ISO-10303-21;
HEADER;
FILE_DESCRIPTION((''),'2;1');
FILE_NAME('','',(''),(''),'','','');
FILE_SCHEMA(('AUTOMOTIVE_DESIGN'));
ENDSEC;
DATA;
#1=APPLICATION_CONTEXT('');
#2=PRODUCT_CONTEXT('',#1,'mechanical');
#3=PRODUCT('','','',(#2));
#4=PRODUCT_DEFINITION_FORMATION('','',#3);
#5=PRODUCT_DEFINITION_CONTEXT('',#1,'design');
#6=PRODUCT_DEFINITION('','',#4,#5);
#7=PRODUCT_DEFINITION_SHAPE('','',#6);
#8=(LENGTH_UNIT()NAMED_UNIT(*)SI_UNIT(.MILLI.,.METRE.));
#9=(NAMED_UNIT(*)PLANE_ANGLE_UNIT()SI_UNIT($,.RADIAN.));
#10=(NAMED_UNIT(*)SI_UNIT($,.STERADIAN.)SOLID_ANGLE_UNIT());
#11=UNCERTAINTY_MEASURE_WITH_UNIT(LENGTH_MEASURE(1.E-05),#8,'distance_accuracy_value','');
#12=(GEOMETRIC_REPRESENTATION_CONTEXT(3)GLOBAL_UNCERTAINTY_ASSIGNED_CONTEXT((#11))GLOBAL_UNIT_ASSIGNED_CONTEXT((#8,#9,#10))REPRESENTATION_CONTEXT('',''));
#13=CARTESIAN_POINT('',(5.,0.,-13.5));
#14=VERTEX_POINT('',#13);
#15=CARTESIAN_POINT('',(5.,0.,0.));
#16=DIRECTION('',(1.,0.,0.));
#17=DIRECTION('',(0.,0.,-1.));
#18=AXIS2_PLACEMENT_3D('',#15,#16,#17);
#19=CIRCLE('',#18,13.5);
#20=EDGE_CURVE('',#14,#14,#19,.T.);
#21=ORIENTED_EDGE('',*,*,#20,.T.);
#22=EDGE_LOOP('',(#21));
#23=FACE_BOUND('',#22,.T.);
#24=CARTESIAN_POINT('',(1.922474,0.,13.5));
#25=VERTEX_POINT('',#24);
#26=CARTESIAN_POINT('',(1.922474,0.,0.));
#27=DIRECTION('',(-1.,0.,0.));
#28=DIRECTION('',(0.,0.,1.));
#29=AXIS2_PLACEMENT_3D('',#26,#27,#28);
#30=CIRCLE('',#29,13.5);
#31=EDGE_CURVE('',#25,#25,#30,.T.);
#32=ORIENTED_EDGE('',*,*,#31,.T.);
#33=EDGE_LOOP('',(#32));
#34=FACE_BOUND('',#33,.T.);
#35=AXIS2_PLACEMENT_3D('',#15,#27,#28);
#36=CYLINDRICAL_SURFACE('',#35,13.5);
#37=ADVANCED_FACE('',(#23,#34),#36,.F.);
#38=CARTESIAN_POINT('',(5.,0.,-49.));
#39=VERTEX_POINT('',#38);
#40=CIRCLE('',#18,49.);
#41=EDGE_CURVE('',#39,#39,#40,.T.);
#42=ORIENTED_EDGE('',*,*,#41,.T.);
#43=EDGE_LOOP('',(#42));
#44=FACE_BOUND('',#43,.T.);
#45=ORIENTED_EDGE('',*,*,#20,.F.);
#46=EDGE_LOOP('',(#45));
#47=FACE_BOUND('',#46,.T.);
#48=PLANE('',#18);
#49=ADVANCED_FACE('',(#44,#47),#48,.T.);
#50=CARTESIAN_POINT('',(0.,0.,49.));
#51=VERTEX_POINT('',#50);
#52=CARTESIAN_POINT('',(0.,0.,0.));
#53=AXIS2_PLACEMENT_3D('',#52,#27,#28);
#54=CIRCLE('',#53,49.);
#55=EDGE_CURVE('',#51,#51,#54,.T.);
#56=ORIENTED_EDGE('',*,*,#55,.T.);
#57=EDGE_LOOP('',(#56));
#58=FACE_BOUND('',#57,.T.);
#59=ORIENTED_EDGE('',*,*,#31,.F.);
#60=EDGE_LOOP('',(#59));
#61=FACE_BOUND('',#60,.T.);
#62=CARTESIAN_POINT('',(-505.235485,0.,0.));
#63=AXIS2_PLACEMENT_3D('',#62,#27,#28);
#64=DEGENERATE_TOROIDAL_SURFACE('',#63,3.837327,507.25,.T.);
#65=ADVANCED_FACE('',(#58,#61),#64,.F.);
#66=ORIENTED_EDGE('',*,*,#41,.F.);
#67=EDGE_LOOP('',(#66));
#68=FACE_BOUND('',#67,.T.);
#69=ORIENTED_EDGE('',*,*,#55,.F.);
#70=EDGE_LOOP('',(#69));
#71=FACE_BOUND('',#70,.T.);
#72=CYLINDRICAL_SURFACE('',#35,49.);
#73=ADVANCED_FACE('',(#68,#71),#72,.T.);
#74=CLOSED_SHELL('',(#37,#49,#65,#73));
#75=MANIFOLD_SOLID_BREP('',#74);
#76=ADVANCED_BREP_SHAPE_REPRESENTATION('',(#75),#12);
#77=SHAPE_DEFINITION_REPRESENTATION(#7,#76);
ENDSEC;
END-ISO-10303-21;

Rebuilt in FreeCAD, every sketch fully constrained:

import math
import FreeCAD as App
import Part
import Sketcher

V = App.Vector
Q = App.Units.Quantity

doc = App.newDocument("Part")
body = doc.addObject("PartDesign::Body", "Body")

# Sketch on YZ plane
sketch1 = body.newObject("Sketcher::SketchObject", "Sketch")
sketch1.AttachmentSupport = (doc.getObject("YZ_Plane"), [""])
sketch1.MapMode = "FlatFace"
sketch1.addGeometry([
    Part.Circle(V(0, 0, 0), V(0, 0, 1), 49),
    Part.Circle(V(0, 0, 0), V(0, 0, 1), 14),
], False)
sketch1.addConstraint([
    Sketcher.Constraint("Coincident", 0, 3, -1, 1),
    Sketcher.Constraint("Coincident", 1, 3, -1, 1),
    Sketcher.Constraint("Diameter", 0, Q("98 mm")),
    Sketcher.Constraint("Diameter", 1, Q("27 mm")),
])
pad1 = body.newObject("PartDesign::Pad", "Pad")
pad1.Profile = sketch1
pad1.Length = 5

# Sketch on XY plane
sketch2 = body.newObject("Sketcher::SketchObject", "Sketch001")
sketch2.AttachmentSupport = (doc.getObject("XY_Plane"), [""])
sketch2.MapMode = "FlatFace"
sketch2.addGeometry([
    Part.LineSegment(V(0, 0, 0), V(2, 0, 0)),
    Part.ArcOfCircle(Part.Circle(V(-505.2, 3.8, 0), V(0, 0, 1), 507.2), math.radians(-0.43), math.radians(5.11)),
    Part.LineSegment(V(0, 49, 0), V(0, 0, 0)),
], False)
sketch2.addConstraint([
    Sketcher.Constraint("Coincident", 0, 2, 1, 1),
    Sketcher.Constraint("Coincident", 1, 2, 2, 1),
    Sketcher.Constraint("Coincident", 2, 2, 0, 1),
    Sketcher.Constraint("Horizontal", 0),
    Sketcher.Constraint("Vertical", 2),
    Sketcher.Constraint("Coincident", 2, 2, -1, 1),
    Sketcher.Constraint("DistanceX", 0, 1, 0, 2, Q("2 mm")),
    Sketcher.Constraint("DistanceY", 2, 2, 2, 1, Q("49 mm")),
    Sketcher.Constraint("Radius", 1, Q("507.25 mm")),
])
groove = body.newObject("PartDesign::Groove", "Groove")
groove.Profile = sketch2
groove.ReferenceAxis = (sketch2, ["H_Axis"])
groove.Angle = 360

doc.recompute()
